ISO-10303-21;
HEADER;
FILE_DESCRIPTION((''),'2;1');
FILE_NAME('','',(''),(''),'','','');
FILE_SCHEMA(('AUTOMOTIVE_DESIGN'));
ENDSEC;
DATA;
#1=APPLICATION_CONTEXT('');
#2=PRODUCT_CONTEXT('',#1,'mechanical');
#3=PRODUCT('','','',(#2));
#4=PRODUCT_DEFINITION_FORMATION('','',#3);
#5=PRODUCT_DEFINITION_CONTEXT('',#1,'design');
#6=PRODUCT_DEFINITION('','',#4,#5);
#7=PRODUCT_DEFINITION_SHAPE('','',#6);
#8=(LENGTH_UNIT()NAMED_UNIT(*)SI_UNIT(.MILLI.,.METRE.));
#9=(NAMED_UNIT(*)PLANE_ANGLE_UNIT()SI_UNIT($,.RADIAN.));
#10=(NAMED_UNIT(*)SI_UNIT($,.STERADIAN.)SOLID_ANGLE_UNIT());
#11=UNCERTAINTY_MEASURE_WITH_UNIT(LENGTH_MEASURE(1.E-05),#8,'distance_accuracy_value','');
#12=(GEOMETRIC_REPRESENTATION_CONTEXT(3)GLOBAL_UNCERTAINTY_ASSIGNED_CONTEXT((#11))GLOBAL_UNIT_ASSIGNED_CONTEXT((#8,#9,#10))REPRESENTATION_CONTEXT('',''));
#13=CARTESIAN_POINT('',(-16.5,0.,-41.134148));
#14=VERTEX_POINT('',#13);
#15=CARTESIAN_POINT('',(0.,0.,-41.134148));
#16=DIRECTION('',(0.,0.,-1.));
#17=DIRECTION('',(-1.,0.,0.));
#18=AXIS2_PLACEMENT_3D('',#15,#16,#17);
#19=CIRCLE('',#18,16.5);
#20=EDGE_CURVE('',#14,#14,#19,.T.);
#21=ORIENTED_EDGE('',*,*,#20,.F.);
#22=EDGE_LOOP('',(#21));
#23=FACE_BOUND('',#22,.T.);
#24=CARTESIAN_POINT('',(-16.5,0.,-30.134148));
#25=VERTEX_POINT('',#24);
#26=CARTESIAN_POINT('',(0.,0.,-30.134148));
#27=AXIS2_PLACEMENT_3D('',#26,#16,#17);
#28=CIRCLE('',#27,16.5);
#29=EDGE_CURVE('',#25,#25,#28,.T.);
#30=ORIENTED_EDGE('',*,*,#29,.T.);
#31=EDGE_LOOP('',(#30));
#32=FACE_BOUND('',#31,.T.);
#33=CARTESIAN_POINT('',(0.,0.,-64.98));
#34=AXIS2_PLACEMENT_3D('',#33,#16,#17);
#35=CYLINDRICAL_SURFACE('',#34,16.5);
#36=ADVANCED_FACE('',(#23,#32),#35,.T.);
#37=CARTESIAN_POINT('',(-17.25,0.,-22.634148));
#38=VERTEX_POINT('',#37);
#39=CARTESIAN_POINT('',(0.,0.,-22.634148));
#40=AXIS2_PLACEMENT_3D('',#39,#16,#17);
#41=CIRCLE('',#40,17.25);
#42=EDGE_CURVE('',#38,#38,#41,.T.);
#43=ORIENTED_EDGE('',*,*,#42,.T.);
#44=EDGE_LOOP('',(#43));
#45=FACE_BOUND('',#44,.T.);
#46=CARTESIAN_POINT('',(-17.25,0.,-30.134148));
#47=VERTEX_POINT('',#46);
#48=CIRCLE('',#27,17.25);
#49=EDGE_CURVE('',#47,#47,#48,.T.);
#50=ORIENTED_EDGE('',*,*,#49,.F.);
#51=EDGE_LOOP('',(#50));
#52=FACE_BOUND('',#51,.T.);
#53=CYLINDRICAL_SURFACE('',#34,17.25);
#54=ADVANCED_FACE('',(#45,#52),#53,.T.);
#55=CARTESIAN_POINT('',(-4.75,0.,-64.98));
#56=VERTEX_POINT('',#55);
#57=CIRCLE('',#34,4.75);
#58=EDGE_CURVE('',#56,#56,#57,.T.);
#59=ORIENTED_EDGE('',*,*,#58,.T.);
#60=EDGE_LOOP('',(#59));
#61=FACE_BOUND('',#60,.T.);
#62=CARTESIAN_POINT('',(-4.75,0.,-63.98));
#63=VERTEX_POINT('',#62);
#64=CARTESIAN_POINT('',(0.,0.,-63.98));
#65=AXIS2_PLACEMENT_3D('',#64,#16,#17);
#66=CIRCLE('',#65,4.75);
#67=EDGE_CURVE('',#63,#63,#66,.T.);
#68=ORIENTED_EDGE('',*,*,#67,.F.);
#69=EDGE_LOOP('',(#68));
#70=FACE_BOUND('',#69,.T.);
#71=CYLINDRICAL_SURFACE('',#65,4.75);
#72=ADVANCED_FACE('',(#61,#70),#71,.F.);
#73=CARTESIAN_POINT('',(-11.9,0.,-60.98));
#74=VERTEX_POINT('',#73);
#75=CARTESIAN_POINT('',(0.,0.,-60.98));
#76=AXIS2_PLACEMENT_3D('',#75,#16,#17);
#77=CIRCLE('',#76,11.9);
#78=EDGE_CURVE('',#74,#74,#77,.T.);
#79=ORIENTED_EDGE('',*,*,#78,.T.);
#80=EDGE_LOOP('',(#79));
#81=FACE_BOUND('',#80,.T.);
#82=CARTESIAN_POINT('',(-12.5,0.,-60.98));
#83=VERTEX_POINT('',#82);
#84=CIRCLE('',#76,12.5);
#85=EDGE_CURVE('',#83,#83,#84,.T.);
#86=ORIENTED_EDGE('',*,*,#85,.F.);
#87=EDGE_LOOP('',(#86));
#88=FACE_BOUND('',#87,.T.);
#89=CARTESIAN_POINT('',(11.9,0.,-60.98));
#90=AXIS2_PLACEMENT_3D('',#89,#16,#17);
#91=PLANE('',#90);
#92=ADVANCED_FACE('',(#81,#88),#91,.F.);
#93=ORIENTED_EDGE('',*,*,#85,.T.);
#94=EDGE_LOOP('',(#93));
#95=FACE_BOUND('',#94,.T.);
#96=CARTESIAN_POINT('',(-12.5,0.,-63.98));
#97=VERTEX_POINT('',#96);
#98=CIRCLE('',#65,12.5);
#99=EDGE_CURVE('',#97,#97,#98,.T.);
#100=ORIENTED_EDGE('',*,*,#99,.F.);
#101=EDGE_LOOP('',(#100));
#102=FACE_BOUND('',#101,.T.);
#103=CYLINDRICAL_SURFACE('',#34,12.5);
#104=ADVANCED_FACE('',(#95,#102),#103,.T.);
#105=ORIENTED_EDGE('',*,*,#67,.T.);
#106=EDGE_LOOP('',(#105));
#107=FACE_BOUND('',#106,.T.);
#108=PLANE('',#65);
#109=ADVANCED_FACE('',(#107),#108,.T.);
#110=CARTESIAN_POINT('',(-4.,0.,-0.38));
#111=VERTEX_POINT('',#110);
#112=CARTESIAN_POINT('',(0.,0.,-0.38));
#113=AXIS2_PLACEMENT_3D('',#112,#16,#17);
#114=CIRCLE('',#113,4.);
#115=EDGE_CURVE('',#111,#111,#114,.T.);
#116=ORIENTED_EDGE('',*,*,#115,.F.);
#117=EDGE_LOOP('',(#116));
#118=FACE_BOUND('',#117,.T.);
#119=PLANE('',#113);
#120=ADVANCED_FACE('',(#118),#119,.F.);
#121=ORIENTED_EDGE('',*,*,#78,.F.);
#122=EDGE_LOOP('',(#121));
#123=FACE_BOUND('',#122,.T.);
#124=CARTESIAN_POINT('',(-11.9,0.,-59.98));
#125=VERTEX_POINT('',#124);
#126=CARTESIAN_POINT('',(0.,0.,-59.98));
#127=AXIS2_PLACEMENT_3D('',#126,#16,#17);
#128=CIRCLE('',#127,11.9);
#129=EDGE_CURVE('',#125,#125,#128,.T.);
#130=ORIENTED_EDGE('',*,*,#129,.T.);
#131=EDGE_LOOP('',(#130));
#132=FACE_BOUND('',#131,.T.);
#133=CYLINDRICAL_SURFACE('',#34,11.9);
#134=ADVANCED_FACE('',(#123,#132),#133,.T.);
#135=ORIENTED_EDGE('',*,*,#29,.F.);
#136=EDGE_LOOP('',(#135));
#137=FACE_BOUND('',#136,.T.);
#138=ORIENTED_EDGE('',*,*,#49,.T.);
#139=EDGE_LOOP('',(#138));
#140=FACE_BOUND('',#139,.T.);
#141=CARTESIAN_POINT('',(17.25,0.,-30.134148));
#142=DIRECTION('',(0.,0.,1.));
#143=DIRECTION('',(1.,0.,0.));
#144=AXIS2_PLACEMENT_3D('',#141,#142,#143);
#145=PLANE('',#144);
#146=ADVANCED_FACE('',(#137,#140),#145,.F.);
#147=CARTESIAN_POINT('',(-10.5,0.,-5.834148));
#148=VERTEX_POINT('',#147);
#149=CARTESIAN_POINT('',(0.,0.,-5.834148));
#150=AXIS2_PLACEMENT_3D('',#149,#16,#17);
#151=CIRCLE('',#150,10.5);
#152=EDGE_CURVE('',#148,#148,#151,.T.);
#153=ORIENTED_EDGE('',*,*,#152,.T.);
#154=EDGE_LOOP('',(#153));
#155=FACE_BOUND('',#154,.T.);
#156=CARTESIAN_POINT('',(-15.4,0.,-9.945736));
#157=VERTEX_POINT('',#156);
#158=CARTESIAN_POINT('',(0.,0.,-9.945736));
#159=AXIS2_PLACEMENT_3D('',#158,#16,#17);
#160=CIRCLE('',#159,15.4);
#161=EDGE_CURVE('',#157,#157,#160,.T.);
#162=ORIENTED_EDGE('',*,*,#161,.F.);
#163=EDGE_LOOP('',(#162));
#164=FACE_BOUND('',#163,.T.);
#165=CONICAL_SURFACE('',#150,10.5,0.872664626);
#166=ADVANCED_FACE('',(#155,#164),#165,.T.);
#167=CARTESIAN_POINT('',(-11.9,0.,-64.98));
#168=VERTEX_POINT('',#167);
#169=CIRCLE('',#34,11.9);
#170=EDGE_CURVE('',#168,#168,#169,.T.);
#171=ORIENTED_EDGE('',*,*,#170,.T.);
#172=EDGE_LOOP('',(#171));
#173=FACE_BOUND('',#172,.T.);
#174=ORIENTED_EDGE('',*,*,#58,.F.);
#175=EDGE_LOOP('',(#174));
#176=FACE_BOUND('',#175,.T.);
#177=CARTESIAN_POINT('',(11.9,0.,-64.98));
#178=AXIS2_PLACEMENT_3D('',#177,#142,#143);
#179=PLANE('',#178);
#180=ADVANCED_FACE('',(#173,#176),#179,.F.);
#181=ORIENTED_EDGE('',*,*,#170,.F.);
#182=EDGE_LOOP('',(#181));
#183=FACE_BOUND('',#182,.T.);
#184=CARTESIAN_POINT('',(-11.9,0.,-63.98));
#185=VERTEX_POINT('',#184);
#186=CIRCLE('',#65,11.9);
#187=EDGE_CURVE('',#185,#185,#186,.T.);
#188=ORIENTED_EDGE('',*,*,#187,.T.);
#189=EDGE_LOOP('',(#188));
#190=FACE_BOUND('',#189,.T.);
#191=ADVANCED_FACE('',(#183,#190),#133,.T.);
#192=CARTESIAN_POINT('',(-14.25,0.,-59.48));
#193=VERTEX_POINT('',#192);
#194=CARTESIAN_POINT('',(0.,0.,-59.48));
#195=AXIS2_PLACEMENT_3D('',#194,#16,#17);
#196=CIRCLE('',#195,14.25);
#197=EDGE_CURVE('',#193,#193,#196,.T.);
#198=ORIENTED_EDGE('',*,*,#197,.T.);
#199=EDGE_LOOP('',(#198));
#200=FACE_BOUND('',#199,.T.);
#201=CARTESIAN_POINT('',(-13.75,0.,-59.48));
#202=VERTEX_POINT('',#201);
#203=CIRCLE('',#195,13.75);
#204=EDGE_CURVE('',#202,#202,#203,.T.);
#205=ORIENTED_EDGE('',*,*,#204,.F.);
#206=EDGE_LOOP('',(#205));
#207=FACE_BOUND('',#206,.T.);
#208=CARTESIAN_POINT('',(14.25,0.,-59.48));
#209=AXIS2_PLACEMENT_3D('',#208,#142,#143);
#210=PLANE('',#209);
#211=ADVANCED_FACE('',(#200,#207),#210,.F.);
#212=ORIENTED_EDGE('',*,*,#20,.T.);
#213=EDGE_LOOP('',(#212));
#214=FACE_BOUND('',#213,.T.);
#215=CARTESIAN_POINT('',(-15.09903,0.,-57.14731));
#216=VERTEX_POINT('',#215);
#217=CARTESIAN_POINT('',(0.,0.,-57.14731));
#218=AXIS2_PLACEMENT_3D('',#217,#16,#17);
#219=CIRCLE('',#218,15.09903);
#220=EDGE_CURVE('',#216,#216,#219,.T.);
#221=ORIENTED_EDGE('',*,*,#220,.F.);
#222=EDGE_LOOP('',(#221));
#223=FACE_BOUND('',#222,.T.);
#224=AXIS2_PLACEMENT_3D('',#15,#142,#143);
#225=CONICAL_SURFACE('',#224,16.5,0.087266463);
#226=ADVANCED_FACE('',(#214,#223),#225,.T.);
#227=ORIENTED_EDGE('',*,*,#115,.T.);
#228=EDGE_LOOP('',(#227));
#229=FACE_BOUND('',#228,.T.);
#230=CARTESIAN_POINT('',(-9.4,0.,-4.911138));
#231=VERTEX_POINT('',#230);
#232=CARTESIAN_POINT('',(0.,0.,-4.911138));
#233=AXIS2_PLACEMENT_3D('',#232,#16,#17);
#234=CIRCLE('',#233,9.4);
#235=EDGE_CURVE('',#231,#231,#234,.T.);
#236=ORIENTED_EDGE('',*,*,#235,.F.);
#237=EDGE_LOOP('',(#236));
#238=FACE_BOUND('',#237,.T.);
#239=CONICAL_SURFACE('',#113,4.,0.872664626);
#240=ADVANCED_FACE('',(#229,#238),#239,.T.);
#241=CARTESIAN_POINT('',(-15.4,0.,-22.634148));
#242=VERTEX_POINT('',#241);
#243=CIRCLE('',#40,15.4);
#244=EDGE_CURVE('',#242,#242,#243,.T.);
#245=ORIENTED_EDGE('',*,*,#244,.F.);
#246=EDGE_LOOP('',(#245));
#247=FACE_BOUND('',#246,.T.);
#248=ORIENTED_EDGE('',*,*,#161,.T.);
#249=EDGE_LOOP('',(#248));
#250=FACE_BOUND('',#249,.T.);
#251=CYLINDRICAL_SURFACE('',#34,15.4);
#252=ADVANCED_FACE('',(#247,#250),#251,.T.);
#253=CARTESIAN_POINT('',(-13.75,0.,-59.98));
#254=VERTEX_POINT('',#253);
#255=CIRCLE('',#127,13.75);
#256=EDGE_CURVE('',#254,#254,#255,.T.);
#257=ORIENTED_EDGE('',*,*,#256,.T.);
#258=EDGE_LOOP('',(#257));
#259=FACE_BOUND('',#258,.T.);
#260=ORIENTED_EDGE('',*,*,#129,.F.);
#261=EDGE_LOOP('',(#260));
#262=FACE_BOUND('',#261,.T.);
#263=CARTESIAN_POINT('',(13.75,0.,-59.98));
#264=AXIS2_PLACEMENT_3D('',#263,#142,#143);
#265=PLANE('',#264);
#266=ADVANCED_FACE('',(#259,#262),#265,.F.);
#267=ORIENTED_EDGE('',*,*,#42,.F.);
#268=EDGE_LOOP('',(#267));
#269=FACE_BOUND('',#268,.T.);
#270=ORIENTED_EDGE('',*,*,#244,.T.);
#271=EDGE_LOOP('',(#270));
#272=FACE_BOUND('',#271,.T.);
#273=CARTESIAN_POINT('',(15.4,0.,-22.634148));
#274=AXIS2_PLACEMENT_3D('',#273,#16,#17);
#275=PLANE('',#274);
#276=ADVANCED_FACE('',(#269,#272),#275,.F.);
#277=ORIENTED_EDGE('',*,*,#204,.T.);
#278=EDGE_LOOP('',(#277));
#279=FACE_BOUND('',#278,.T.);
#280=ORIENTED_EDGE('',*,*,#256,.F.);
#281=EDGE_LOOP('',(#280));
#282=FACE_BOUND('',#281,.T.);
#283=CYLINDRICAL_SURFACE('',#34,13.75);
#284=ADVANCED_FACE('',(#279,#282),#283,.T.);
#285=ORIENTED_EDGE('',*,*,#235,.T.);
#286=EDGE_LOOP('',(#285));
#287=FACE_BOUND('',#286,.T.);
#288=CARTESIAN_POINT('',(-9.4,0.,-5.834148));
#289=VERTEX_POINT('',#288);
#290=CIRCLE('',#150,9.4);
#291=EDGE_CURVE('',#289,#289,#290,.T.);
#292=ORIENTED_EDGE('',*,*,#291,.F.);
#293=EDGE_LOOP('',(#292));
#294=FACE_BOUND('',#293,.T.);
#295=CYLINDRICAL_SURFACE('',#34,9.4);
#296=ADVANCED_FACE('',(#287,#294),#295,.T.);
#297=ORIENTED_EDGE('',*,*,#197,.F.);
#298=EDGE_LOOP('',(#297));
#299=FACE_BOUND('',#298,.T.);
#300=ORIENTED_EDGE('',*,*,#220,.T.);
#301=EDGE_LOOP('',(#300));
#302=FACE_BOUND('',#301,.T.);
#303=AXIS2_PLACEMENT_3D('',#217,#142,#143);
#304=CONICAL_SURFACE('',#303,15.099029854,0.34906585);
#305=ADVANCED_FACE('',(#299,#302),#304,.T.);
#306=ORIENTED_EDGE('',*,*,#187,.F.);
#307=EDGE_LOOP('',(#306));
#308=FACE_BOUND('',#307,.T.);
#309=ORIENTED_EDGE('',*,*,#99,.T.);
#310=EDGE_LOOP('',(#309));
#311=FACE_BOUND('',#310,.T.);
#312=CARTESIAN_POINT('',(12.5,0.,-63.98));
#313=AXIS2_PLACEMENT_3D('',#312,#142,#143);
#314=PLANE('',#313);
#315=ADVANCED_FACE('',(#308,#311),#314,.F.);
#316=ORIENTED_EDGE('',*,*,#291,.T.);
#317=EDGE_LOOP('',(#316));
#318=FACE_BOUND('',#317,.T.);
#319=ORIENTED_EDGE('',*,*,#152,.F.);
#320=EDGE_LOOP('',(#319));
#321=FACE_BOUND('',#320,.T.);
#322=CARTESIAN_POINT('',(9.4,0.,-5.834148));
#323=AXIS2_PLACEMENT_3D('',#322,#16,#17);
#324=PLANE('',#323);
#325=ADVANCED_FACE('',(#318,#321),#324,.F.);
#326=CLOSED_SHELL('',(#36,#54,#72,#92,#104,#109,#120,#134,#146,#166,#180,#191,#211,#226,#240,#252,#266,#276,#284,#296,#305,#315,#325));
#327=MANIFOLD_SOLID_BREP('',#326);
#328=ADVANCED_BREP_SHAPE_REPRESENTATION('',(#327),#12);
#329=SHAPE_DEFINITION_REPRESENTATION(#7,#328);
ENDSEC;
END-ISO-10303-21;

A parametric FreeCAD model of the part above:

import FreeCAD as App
import Part
import Sketcher
from FreeCAD import Vector
Q = App.Units.Quantity


def add_polygon(sketch, points):
    """Adds a closed chain of lines whose ends are joined by coincident constraints."""
    first, n = sketch.GeometryCount, len(points)
    for a, b in zip(points, points[1:] + points[:1]):
        sketch.addGeometry(Part.LineSegment(App.Vector(*a, 0), App.Vector(*b, 0)), False)
    for i in range(n):
        sketch.addConstraint(Sketcher.Constraint("Coincident", first + i, 2, first + (i + 1) % n, 1))

doc = App.newDocument("Part")
body = doc.addObject("PartDesign::Body", "Body")

sketch1 = body.newObject("Sketcher::SketchObject", "Sketch")
sketch1.AttachmentSupport = (doc.getObject("XZ_Plane"), [""])
sketch1.MapMode = "FlatFace"
add_polygon(sketch1, [(0, -0.38), (4, -0.38), (9.4, -4.911138), (9.4, -5.834148), (10.5, -5.834148), (15.4, -9.945736), (15.4, -22.634148), (17.25, -22.634148), (17.25, -30.134148), (16.5, -30.134148), (16.5, -41.134148), (15.09903, -57.14731), (14.25, -59.48), (13.75, -59.48), (13.75, -59.98), (11.9, -59.98), (11.9, -60.98), (12.5, -60.98), (12.5, -63.98), (11.9, -63.98), (11.9, -64.98), (0, -64.98)])
sketch1.addConstraint(Sketcher.Constraint("Horizontal", 0))
sketch1.addConstraint(Sketcher.Constraint("Vertical", 2))
sketch1.addConstraint(Sketcher.Constraint("Horizontal", 3))
sketch1.addConstraint(Sketcher.Constraint("Vertical", 5))
sketch1.addConstraint(Sketcher.Constraint("Horizontal", 6))
sketch1.addConstraint(Sketcher.Constraint("Vertical", 7))
sketch1.addConstraint(Sketcher.Constraint("Horizontal", 8))
sketch1.addConstraint(Sketcher.Constraint("Vertical", 9))
sketch1.addConstraint(Sketcher.Constraint("Horizontal", 12))
sketch1.addConstraint(Sketcher.Constraint("Vertical", 13))
sketch1.addConstraint(Sketcher.Constraint("Horizontal", 14))
sketch1.addConstraint(Sketcher.Constraint("Vertical", 15))
sketch1.addConstraint(Sketcher.Constraint("Horizontal", 16))
sketch1.addConstraint(Sketcher.Constraint("Vertical", 17))
sketch1.addConstraint(Sketcher.Constraint("Horizontal", 18))
sketch1.addConstraint(Sketcher.Constraint("Vertical", 19))
sketch1.addConstraint(Sketcher.Constraint("Horizontal", 20))
sketch1.addConstraint(Sketcher.Constraint("Vertical", 21))
sketch1.addConstraint(Sketcher.Constraint("PointOnObject", 20, 2, -2))
sketch1.addConstraint(Sketcher.Constraint("Parallel", 1, 4))
sketch1.addConstraint(Sketcher.Constraint("Vertical", 15, 2, 18, 2))
sketch1.addConstraint(Sketcher.Constraint("Equal", 6, 14))
sketch1.addConstraint(Sketcher.Constraint("Equal", 12, 13))
sketch1.addConstraint(Sketcher.Constraint("Equal", 15, 19))
sketch1.addConstraint(Sketcher.Constraint("DistanceX", 0, 1, 0, 2, 4.0))
sketch1.addConstraint(Sketcher.Constraint("DistanceY", 9, 2, 9, 1, 11.0))
sketch1.addConstraint(Sketcher.Constraint("DistanceY", 15, 2, 15, 1, 1.0))
sketch1.addConstraint(Sketcher.Constraint("DistanceY", 17, 2, 17, 1, 3.0))
sketch1.addConstraint(Sketcher.Constraint("Angle", 1, Q("-40 deg")))
sketch1.addConstraint(Sketcher.Constraint("Angle", 10, Q("-95 deg")))
sketch1.addConstraint(Sketcher.Constraint("Angle", 11, Q("-110 deg")))
sketch1.addConstraint(Sketcher.Constraint("DistanceX", 3, 1, 3, 2, 1.1))
sketch1.addConstraint(Sketcher.Constraint("DistanceX", 12, 2, 12, 1, 0.5))
sketch1.addConstraint(Sketcher.Constraint("DistanceX", 16, 1, 16, 2, 0.6))
sketch1.addConstraint(Sketcher.Constraint("DistanceX", 20, 2, 20, 1, 11.9))
sketch1.addConstraint(Sketcher.Constraint("DistanceY", 7, 2, 7, 1, 7.5))
sketch1.addConstraint(Sketcher.Constraint("DistanceY", 21, 1, 21, 2, 64.6))
sketch1.addConstraint(Sketcher.Constraint("DistanceX", 2, 2, 4, 2, 6.0))
sketch1.addConstraint(Sketcher.Constraint("DistanceX", 3, 2, 8, 2, 6.0))
sketch1.addConstraint(Sketcher.Constraint("DistanceX", 11, 2, 7, 2, 3.0))
sketch1.addConstraint(Sketcher.Constraint("DistanceX", 6, 1, 6, 2, 1.85))
sketch1.addConstraint(Sketcher.Constraint("DistanceY", 5, 2, 3, 2, 16.8))
sketch1.addConstraint(Sketcher.Constraint("DistanceY", 0, 2, -1, 1, 0.38))
sketch1.addConstraint(Sketcher.Constraint("DistanceY", 2, 2, 2, 1, 0.92301))
revolution = body.newObject("PartDesign::Revolution", "Revolution")
revolution.Profile = sketch1
revolution.ReferenceAxis = (sketch1, ["V_Axis"])
revolution.Angle = 360

sketch2 = body.newObject("Sketcher::SketchObject", "Sketch001")
sketch2.AttachmentSupport = (doc.getObject("XY_Plane"), [""])
sketch2.MapMode = "FlatFace"
sketch2.AttachmentOffset = App.Placement(Vector(0, 0, -64.98), App.Rotation())
sketch2.addGeometry(Part.Circle(Vector(0, 0, 0), Vector(0, 0, 1), 4.75), False)
sketch2.addConstraint(Sketcher.Constraint("Coincident", 0, 3, -1, 1))
sketch2.addConstraint(Sketcher.Constraint("Diameter", 0, 9.5))
pocket1 = body.newObject("PartDesign::Pocket", "Pocket")
pocket1.Profile = sketch2
pocket1.Length = 1
pocket1.Reversed = True

doc.recompute()
